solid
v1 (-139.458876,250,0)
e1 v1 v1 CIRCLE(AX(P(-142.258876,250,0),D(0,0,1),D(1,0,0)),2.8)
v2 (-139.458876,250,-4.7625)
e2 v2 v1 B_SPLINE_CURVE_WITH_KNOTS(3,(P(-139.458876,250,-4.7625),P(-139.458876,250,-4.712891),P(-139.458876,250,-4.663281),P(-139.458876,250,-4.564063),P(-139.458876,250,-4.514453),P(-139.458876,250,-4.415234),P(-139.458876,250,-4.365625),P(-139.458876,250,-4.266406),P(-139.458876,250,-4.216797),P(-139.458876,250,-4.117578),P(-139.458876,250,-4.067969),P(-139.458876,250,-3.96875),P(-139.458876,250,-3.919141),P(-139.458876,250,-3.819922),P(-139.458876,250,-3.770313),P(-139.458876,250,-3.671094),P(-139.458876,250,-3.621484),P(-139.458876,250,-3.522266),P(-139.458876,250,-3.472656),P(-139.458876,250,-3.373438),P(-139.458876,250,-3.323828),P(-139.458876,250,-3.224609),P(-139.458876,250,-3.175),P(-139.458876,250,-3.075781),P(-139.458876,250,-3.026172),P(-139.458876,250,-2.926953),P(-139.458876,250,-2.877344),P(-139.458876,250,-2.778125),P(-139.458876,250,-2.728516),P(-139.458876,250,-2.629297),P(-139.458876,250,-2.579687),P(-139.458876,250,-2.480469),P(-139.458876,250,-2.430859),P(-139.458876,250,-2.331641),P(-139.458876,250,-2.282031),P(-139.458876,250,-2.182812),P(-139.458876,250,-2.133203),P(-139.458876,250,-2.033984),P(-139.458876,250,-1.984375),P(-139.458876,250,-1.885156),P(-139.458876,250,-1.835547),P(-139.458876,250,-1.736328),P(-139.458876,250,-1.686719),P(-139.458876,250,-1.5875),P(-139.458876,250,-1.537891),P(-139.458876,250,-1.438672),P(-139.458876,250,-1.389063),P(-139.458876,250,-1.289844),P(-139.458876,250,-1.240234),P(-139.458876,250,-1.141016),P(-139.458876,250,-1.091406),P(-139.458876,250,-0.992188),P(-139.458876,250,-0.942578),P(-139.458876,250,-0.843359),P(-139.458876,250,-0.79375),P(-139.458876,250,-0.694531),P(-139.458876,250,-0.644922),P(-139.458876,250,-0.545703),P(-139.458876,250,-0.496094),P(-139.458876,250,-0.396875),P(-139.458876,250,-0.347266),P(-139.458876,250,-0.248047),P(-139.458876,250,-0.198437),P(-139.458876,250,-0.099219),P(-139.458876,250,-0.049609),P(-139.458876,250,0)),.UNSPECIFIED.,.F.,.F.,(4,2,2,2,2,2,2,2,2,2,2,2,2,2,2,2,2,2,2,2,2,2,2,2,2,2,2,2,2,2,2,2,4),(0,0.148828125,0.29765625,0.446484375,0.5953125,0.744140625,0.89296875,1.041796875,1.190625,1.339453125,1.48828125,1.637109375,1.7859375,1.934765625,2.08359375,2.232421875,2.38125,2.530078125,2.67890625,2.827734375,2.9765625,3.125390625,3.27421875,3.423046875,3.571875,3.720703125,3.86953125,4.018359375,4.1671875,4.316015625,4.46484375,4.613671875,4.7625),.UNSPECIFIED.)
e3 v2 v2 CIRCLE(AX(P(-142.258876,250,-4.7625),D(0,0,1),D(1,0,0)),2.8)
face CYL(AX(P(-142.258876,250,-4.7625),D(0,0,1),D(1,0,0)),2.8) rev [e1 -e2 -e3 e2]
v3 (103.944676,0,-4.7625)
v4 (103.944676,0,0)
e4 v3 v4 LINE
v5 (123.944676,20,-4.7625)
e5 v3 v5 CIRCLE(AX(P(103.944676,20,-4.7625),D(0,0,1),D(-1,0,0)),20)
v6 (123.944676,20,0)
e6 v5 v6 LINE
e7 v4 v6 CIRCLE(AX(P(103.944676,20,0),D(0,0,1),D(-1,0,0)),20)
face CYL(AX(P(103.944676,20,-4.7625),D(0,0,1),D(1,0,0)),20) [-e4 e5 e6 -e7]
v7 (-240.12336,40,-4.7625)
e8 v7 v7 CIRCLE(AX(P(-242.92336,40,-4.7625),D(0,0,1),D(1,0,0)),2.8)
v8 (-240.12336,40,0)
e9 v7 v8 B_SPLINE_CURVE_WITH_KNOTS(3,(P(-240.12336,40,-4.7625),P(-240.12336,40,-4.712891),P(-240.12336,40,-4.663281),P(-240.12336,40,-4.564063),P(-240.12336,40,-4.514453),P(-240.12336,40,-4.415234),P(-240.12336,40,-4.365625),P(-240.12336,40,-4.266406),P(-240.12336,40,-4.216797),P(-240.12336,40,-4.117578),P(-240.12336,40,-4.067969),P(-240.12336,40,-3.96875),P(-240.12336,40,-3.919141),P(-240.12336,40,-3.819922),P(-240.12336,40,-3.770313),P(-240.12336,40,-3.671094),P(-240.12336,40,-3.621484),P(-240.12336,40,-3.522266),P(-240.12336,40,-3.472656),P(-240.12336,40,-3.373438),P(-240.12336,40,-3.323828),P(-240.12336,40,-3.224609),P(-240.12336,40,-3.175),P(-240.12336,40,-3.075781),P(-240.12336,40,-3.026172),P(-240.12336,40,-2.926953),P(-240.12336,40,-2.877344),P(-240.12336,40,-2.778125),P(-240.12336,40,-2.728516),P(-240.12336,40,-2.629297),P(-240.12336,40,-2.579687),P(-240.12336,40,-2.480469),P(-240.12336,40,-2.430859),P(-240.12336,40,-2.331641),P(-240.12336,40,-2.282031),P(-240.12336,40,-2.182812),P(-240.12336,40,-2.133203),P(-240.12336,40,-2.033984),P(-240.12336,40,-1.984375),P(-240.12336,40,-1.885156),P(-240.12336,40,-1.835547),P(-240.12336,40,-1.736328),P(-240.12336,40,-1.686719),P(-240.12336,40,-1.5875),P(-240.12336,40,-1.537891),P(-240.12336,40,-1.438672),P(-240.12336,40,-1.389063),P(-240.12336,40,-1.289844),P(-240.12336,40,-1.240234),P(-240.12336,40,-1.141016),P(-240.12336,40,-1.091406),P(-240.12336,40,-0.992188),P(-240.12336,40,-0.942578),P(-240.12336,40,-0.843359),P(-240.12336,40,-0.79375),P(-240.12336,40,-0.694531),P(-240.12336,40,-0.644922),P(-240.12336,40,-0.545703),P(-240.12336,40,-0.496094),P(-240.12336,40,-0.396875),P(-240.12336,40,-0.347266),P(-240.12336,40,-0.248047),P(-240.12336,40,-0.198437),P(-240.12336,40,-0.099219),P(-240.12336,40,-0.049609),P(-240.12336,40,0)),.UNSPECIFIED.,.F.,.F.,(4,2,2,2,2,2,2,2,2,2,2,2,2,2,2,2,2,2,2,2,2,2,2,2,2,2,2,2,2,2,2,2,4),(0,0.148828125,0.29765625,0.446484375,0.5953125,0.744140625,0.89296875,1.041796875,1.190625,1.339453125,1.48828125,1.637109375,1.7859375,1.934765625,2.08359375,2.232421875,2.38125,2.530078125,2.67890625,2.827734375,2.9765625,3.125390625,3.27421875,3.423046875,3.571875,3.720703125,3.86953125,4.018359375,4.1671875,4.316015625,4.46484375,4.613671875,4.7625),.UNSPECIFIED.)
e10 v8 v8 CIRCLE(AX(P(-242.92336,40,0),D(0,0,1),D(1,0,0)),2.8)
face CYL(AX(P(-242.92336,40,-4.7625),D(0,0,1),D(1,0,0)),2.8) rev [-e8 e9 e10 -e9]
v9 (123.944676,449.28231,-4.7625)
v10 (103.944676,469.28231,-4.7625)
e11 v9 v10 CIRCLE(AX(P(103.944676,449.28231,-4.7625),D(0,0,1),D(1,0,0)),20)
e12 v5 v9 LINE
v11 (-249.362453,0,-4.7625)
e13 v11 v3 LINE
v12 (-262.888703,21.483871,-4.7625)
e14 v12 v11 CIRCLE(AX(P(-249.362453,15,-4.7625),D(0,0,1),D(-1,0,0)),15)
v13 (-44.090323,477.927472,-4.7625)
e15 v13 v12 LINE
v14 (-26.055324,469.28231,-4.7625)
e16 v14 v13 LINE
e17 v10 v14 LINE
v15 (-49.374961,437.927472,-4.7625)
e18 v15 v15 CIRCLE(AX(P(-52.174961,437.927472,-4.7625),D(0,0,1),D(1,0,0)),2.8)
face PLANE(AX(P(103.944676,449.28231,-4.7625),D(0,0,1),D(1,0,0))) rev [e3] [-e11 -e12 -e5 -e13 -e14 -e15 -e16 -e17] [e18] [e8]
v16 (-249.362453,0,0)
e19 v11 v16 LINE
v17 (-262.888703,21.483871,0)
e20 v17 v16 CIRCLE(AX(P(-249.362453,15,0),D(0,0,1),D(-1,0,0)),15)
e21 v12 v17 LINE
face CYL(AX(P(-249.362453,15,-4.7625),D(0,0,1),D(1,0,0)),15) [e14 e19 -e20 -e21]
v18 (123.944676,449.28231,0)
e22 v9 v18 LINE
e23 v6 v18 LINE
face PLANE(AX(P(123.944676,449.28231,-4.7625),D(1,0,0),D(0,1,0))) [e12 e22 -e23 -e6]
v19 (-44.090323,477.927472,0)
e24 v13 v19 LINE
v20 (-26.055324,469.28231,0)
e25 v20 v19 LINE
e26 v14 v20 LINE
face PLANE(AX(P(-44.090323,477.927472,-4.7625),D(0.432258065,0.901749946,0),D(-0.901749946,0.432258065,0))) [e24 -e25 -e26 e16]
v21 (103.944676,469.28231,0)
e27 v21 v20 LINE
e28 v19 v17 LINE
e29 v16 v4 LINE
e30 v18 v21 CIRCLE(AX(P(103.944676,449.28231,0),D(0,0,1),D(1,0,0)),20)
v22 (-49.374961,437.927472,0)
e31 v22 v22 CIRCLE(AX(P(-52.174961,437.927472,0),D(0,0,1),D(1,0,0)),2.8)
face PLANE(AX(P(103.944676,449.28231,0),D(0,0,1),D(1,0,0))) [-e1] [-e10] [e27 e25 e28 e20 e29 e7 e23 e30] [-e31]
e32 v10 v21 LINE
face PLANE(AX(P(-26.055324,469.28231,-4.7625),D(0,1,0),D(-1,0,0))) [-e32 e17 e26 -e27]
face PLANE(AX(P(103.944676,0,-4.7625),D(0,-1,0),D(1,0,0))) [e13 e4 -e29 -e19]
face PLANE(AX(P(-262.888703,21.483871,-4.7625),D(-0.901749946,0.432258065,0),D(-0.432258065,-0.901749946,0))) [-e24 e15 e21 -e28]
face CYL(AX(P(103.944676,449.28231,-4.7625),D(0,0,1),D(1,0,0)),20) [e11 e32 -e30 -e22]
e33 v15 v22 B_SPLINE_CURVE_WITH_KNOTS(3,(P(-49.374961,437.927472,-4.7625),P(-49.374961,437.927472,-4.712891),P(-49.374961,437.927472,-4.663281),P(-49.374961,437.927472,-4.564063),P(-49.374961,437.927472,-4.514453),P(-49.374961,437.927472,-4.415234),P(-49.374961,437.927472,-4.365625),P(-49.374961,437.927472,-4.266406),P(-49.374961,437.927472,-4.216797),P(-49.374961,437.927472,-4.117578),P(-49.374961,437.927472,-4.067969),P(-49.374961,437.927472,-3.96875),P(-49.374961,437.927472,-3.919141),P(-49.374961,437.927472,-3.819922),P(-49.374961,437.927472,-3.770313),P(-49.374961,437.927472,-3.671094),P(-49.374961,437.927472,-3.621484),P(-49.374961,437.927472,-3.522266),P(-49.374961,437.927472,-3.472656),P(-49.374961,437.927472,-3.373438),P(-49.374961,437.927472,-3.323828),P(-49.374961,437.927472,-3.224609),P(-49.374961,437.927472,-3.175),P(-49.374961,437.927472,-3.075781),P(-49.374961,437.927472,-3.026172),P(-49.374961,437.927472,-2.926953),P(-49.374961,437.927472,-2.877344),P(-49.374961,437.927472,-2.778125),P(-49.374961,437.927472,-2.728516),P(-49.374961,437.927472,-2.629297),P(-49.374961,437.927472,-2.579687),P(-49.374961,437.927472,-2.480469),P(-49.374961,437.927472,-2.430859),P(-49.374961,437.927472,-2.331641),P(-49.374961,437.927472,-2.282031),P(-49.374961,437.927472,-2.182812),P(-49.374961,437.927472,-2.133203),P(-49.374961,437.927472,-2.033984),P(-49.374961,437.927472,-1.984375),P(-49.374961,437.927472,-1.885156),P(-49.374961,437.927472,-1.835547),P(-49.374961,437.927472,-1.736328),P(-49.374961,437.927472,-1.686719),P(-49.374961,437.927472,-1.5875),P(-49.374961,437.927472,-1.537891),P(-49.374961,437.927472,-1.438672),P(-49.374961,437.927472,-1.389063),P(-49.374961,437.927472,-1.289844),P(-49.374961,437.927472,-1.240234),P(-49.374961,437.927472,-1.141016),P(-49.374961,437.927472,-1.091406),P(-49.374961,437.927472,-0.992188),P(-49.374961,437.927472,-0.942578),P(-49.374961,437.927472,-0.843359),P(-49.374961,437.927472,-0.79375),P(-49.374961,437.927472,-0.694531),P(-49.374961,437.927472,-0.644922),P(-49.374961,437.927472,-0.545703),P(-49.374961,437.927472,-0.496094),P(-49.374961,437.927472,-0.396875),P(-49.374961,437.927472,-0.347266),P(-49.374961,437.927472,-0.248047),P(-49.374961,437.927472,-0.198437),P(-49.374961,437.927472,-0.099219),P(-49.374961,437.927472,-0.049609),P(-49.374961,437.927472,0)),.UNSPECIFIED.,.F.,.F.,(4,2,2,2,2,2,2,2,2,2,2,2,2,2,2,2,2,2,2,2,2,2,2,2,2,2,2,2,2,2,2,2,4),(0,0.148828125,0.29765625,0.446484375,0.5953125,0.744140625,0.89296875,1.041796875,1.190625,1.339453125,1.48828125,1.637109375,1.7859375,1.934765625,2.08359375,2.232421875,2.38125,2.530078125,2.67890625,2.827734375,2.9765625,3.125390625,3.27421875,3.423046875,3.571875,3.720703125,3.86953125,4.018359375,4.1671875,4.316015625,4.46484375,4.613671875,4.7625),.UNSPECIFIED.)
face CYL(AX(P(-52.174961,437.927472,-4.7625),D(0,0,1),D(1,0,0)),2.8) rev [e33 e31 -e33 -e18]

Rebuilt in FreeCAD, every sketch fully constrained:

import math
import FreeCAD as App
import Part
import Sketcher
from FreeCAD import Vector

doc = App.newDocument("Part")
body = doc.addObject("PartDesign::Body", "Body")

# Sketch on XY plane
sketch1 = doc.addObject("Sketcher::SketchObject", "Sketch")
body.addObject(sketch1)
sketch1.AttachmentSupport = (doc.XY_Plane, [""])
sketch1.MapMode = "FlatFace"
sketch1.addGeometry(Part.LineSegment(Vector(-249.4, 0, 0), Vector(103.9, 0, 0)), False)
sketch1.addGeometry(Part.ArcOfCircle(Part.Circle(Vector(103.9, 20, 0), Vector(0, 0, 1), 20), math.radians(-90), math.radians(0)), False)
sketch1.addGeometry(Part.LineSegment(Vector(123.9, 20, 0), Vector(123.9, 449.3, 0)), False)
sketch1.addGeometry(Part.ArcOfCircle(Part.Circle(Vector(103.9, 449.3, 0), Vector(0, 0, 1), 20), math.radians(0), math.radians(90)), False)
sketch1.addGeometry(Part.LineSegment(Vector(103.9, 469.3, 0), Vector(-26.1, 469.3, 0)), False)
sketch1.addGeometry(Part.LineSegment(Vector(-26.1, 469.3, 0), Vector(-44.1, 477.9, 0)), False)
sketch1.addGeometry(Part.LineSegment(Vector(-44.1, 477.9, 0), Vector(-262.9, 21.5, 0)), False)
sketch1.addGeometry(Part.ArcOfCircle(Part.Circle(Vector(-249.4, 15, 0), Vector(0, 0, 1), 15), math.radians(154), math.radians(270)), False)
sketch1.addGeometry(Part.Circle(Vector(-242.9, 40, 0), Vector(0, 0, 1), 2.8), False)
sketch1.addGeometry(Part.Circle(Vector(-142.3, 250, 0), Vector(0, 0, 1), 2.8), False)
sketch1.addGeometry(Part.Circle(Vector(-52.2, 437.9, 0), Vector(0, 0, 1), 2.8), False)
sketch1.addConstraint(Sketcher.Constraint("Tangent", 0, 2, 1, 1))
sketch1.addConstraint(Sketcher.Constraint("Tangent", 1, 2, 2, 1))
sketch1.addConstraint(Sketcher.Constraint("Tangent", 2, 2, 3, 1))
sketch1.addConstraint(Sketcher.Constraint("Tangent", 3, 2, 4, 1))
sketch1.addConstraint(Sketcher.Constraint("Coincident", 4, 2, 5, 1))
sketch1.addConstraint(Sketcher.Constraint("Coincident", 5, 2, 6, 1))
sketch1.addConstraint(Sketcher.Constraint("Tangent", 6, 2, 7, 1))
sketch1.addConstraint(Sketcher.Constraint("Tangent", 7, 2, 0, 1))
sketch1.addConstraint(Sketcher.Constraint("Horizontal", 0))
sketch1.addConstraint(Sketcher.Constraint("Vertical", 2))
sketch1.addConstraint(Sketcher.Constraint("Horizontal", 4))
sketch1.addConstraint(Sketcher.Constraint("Equal", 1, 3))
sketch1.addConstraint(Sketcher.Constraint("Equal", 8, 9))
sketch1.addConstraint(Sketcher.Constraint("Equal", 9, 10))
sketch1.addConstraint(Sketcher.Constraint("PointOnObject", 0, 2, -1))
sketch1.addConstraint(Sketcher.Constraint("Perpendicular", 5, 6))
sketch1.addConstraint(Sketcher.Constraint("Radius", 1, 20.0))
sketch1.addConstraint(Sketcher.Constraint("Radius", 7, 15.0))
sketch1.addConstraint(Sketcher.Constraint("Diameter", 8, 5.6))
sketch1.addConstraint(Sketcher.Constraint("DistanceX", 4, 2, 4, 1, 130.0))
sketch1.addConstraint(Sketcher.Constraint("Distance", 5, 20.0))
sketch1.addConstraint(Sketcher.Constraint("DistanceY", -1, 1, 8, 3, 40.0))
sketch1.addConstraint(Sketcher.Constraint("DistanceY", -1, 1, 9, 3, 250.0))
sketch1.addConstraint(Sketcher.Constraint("DistanceY", 10, 3, 5, 2, 40.0))
sketch1.addConstraint(Sketcher.Constraint("DistanceX", 5, 2, 4, 2, 18.034999))
sketch1.addConstraint(Sketcher.Constraint("DistanceX", 0, 1, 0, 2, 353.30713))
sketch1.addConstraint(Sketcher.Constraint("DistanceX", 8, 3, 10, 3, 190.748399))
sketch1.addConstraint(Sketcher.Constraint("DistanceX", 8, 3, -1, 1, 242.92336))
sketch1.addConstraint(Sketcher.Constraint("DistanceX", 7, 3, 10, 3, 197.187492))
sketch1.addConstraint(Sketcher.Constraint("DistanceX", 9, 3, -1, 1, 142.258876))
pad1 = doc.addObject("PartDesign::Pad", "Pad")
body.addObject(pad1)
pad1.Profile = sketch1
pad1.Length = 4.7625
pad1.Reversed = True

doc.recompute()
